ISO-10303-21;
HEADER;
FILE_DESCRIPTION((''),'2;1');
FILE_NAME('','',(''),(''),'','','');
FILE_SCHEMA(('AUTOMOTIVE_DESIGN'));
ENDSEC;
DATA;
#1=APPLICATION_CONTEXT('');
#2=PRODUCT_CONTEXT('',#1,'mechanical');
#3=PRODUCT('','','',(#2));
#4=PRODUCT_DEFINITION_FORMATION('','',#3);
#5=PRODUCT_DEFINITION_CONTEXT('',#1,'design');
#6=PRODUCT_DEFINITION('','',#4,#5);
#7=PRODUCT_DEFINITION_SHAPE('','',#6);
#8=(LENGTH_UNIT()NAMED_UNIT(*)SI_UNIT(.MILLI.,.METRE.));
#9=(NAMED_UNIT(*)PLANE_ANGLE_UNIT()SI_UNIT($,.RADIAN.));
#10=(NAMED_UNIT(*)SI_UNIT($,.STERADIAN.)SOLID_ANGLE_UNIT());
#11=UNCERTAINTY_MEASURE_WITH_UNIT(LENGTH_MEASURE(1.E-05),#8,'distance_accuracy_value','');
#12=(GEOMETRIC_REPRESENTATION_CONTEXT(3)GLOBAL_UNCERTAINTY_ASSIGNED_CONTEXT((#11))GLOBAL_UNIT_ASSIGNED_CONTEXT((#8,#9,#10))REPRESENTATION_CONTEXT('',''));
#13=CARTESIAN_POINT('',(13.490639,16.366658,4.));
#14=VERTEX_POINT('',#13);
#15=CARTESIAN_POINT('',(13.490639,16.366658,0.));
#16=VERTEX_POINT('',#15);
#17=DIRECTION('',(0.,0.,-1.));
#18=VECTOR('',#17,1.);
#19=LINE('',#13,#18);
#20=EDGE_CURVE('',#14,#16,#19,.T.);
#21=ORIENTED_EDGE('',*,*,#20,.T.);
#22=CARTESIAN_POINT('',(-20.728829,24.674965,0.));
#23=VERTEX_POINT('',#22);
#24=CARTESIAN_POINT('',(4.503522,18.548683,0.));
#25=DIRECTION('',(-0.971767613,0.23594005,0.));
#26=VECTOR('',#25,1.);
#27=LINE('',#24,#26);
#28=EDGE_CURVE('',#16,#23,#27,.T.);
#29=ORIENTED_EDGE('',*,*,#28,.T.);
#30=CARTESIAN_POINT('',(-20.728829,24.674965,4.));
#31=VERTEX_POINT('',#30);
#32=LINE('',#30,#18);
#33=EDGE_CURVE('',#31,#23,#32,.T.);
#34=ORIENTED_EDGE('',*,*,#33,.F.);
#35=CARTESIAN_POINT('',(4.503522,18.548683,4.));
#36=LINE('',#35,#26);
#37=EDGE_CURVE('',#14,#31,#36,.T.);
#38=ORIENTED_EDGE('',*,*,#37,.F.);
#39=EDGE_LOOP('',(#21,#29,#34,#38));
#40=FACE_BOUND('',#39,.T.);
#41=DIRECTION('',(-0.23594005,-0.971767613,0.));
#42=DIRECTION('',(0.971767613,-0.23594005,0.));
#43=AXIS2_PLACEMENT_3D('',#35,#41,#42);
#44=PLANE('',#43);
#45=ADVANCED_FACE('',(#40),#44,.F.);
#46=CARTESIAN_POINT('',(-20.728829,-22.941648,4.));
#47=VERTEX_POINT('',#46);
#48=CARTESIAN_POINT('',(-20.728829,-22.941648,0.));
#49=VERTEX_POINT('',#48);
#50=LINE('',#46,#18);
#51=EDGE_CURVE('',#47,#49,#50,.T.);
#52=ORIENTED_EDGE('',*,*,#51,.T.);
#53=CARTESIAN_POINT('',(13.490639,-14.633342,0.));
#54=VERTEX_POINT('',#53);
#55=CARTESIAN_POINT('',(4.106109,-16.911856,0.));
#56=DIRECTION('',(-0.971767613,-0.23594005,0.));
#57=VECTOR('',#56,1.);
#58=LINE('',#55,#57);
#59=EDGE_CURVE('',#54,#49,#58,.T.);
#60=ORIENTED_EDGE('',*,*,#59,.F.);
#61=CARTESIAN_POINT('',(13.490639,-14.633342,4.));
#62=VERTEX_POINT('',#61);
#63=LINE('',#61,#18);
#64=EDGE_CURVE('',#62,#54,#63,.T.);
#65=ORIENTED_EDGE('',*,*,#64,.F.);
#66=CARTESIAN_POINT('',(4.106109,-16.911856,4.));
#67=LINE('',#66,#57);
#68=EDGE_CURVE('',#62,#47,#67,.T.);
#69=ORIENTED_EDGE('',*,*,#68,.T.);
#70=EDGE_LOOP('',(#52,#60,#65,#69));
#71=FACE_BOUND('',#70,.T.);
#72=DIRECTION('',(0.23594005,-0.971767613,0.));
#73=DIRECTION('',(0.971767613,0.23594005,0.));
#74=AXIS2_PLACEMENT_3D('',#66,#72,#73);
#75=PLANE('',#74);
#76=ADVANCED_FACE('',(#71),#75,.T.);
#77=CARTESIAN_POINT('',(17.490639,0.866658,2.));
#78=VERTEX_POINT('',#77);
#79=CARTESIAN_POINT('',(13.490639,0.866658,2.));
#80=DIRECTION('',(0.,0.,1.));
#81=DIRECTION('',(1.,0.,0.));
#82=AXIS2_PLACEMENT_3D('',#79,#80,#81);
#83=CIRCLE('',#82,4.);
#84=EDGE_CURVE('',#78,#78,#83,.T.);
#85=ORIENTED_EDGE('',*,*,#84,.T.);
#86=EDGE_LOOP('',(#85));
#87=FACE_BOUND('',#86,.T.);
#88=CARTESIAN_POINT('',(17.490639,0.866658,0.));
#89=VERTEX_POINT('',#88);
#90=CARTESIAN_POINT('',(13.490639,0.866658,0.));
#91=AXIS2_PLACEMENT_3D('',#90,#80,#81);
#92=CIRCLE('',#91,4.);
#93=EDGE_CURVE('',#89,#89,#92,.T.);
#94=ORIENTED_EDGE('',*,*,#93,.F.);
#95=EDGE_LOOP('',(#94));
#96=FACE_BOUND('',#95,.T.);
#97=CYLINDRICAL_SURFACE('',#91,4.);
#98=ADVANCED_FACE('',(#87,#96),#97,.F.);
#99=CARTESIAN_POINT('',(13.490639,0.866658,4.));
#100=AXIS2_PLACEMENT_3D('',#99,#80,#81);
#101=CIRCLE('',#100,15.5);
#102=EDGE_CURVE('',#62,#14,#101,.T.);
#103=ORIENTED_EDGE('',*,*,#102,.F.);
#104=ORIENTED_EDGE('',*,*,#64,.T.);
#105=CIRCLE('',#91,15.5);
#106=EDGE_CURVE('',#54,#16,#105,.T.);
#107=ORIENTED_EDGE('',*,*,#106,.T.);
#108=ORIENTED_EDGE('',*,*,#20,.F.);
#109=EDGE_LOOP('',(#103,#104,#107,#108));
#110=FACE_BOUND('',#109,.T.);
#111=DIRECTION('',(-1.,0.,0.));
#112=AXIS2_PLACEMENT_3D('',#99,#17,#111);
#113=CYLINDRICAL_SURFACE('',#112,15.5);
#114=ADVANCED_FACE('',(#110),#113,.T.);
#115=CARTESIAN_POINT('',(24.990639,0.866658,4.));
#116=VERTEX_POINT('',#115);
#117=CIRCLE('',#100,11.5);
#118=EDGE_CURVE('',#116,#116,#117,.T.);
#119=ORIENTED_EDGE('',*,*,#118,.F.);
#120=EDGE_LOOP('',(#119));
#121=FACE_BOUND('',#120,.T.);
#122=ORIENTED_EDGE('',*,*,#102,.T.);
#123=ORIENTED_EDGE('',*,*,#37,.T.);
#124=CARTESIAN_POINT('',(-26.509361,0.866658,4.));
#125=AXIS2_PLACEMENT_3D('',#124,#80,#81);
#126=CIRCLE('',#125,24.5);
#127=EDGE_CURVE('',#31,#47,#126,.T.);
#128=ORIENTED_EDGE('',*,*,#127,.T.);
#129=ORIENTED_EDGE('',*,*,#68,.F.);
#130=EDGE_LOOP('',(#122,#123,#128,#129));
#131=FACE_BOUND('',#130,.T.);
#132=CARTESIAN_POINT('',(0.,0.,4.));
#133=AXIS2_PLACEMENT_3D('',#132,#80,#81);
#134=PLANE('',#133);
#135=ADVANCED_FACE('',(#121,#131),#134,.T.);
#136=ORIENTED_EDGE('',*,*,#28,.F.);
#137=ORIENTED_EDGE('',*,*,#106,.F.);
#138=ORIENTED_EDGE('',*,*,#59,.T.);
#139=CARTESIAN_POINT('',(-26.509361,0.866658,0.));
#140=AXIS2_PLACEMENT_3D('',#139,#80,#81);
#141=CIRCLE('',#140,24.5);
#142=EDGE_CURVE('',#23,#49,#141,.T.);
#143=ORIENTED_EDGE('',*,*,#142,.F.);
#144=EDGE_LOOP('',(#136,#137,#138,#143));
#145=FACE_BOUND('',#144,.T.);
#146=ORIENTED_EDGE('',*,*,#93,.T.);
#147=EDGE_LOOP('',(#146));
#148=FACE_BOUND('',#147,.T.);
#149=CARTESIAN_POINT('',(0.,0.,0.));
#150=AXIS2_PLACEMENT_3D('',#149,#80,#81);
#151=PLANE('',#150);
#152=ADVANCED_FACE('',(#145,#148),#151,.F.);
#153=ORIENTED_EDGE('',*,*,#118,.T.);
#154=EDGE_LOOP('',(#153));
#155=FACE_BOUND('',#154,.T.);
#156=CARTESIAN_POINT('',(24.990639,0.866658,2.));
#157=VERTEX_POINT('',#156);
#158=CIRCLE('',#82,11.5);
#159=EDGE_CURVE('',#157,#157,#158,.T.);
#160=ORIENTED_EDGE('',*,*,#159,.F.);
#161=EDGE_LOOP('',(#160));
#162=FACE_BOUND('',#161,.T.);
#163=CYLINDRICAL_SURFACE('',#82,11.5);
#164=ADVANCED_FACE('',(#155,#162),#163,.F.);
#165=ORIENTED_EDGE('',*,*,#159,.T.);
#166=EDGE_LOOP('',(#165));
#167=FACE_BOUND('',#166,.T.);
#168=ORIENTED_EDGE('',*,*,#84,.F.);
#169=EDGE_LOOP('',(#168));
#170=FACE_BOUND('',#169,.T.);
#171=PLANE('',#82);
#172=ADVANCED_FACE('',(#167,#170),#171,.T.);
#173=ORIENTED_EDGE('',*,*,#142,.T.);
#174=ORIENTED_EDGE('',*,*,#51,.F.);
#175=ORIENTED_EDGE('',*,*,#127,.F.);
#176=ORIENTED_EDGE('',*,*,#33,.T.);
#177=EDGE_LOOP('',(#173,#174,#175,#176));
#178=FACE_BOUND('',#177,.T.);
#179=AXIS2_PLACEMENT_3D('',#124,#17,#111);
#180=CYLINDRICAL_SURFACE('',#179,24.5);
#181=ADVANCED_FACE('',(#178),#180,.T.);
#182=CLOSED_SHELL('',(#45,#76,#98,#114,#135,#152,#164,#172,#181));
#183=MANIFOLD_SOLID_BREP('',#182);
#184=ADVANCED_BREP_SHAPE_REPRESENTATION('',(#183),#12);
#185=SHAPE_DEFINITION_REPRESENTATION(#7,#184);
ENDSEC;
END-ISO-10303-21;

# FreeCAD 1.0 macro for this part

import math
import FreeCAD as App
import Part
import Sketcher

doc = App.newDocument("Part")
body = doc.addObject("PartDesign::Body", "Body")

sketch1 = doc.addObject("Sketcher::SketchObject", "Sketch")
body.addObject(sketch1)
sketch1.AttachmentSupport = (doc.XY_Plane, [""])
sketch1.MapMode = "FlatFace"
sketch1.addGeometry([
    Part.LineSegment(App.Vector(13.490639, 16.366658, 0), App.Vector(-20.728829, 24.674965, 0)),
    Part.ArcOfCircle(Part.Circle(App.Vector(-26.509361, 0.866658, 0), App.Vector(0, 0, 1), 24.5), math.radians(76.352958), math.radians(283.647042)),
    Part.LineSegment(App.Vector(-20.728829, -22.941648, 0), App.Vector(13.490639, -14.633342, 0)),
    Part.ArcOfCircle(Part.Circle(App.Vector(13.490639, 0.866658, 0), App.Vector(0, 0, 1), 15.5), math.radians(-90), math.radians(90)),
], False)
sketch1.addConstraint([
    Sketcher.Constraint("Tangent", 0, 2, 1, 1),
    Sketcher.Constraint("Tangent", 1, 2, 2, 1),
    Sketcher.Constraint("Coincident", 2, 2, 3, 1),
    Sketcher.Constraint("Coincident", 3, 2, 0, 1),
    Sketcher.Constraint("Horizontal", 1, 3, 3, 3),
    Sketcher.Constraint("Vertical", 0, 2, 1, 2),
    Sketcher.Constraint("Vertical", 3, 3, 2, 2),
    Sketcher.Constraint("Radius", 1, 24.5),
    Sketcher.Constraint("Radius", 3, 15.5),
    Sketcher.Constraint("DistanceX", 1, 3, 3, 3, 40.0),
    Sketcher.Constraint("DistanceX", 1, 3, -1, 1, 26.509361),
    Sketcher.Constraint("DistanceY", -1, 1, 1, 3, 0.866658),
])
pad1 = doc.addObject("PartDesign::Pad", "Pad")
body.addObject(pad1)
pad1.Profile = sketch1
pad1.Length = 4

sketch2 = doc.addObject("Sketcher::SketchObject", "Sketch001")
body.addObject(sketch2)
sketch2.AttachmentSupport = (doc.XY_Plane, [""])
sketch2.MapMode = "FlatFace"
sketch2.AttachmentOffset = App.Placement(App.Vector(0, 0, 4), App.Rotation())
sketch2.addGeometry(Part.Circle(App.Vector(13.490639, 0.866658, 0), App.Vector(0, 0, 1), 11.5), False)
sketch2.addConstraint([
    Sketcher.Constraint("Diameter", 0, 23.0),
    Sketcher.Constraint("DistanceX", -1, 1, 0, 3, 13.490639),
    Sketcher.Constraint("DistanceY", -1, 1, 0, 3, 0.866658),
])
pocket1 = doc.addObject("PartDesign::Pocket", "Pocket")
body.addObject(pocket1)
pocket1.Profile = sketch2
pocket1.Length = 2

sketch3 = doc.addObject("Sketcher::SketchObject", "Sketch002")
body.addObject(sketch3)
sketch3.AttachmentSupport = (doc.XY_Plane, [""])
sketch3.MapMode = "FlatFace"
sketch3.AttachmentOffset = App.Placement(App.Vector(0, 0, 2), App.Rotation())
sketch3.addGeometry(Part.Circle(App.Vector(13.490639, 0.866658, 0), App.Vector(0, 0, 1), 4), False)
sketch3.addConstraint([
    Sketcher.Constraint("Diameter", 0, 8.0),
    Sketcher.Constraint("DistanceX", -1, 1, 0, 3, 13.490639),
    Sketcher.Constraint("DistanceY", -1, 1, 0, 3, 0.866658),
])
pocket2 = doc.addObject("PartDesign::Pocket", "Pocket001")
body.addObject(pocket2)
pocket2.Profile = sketch3
pocket2.Length = 2

doc.recompute()
